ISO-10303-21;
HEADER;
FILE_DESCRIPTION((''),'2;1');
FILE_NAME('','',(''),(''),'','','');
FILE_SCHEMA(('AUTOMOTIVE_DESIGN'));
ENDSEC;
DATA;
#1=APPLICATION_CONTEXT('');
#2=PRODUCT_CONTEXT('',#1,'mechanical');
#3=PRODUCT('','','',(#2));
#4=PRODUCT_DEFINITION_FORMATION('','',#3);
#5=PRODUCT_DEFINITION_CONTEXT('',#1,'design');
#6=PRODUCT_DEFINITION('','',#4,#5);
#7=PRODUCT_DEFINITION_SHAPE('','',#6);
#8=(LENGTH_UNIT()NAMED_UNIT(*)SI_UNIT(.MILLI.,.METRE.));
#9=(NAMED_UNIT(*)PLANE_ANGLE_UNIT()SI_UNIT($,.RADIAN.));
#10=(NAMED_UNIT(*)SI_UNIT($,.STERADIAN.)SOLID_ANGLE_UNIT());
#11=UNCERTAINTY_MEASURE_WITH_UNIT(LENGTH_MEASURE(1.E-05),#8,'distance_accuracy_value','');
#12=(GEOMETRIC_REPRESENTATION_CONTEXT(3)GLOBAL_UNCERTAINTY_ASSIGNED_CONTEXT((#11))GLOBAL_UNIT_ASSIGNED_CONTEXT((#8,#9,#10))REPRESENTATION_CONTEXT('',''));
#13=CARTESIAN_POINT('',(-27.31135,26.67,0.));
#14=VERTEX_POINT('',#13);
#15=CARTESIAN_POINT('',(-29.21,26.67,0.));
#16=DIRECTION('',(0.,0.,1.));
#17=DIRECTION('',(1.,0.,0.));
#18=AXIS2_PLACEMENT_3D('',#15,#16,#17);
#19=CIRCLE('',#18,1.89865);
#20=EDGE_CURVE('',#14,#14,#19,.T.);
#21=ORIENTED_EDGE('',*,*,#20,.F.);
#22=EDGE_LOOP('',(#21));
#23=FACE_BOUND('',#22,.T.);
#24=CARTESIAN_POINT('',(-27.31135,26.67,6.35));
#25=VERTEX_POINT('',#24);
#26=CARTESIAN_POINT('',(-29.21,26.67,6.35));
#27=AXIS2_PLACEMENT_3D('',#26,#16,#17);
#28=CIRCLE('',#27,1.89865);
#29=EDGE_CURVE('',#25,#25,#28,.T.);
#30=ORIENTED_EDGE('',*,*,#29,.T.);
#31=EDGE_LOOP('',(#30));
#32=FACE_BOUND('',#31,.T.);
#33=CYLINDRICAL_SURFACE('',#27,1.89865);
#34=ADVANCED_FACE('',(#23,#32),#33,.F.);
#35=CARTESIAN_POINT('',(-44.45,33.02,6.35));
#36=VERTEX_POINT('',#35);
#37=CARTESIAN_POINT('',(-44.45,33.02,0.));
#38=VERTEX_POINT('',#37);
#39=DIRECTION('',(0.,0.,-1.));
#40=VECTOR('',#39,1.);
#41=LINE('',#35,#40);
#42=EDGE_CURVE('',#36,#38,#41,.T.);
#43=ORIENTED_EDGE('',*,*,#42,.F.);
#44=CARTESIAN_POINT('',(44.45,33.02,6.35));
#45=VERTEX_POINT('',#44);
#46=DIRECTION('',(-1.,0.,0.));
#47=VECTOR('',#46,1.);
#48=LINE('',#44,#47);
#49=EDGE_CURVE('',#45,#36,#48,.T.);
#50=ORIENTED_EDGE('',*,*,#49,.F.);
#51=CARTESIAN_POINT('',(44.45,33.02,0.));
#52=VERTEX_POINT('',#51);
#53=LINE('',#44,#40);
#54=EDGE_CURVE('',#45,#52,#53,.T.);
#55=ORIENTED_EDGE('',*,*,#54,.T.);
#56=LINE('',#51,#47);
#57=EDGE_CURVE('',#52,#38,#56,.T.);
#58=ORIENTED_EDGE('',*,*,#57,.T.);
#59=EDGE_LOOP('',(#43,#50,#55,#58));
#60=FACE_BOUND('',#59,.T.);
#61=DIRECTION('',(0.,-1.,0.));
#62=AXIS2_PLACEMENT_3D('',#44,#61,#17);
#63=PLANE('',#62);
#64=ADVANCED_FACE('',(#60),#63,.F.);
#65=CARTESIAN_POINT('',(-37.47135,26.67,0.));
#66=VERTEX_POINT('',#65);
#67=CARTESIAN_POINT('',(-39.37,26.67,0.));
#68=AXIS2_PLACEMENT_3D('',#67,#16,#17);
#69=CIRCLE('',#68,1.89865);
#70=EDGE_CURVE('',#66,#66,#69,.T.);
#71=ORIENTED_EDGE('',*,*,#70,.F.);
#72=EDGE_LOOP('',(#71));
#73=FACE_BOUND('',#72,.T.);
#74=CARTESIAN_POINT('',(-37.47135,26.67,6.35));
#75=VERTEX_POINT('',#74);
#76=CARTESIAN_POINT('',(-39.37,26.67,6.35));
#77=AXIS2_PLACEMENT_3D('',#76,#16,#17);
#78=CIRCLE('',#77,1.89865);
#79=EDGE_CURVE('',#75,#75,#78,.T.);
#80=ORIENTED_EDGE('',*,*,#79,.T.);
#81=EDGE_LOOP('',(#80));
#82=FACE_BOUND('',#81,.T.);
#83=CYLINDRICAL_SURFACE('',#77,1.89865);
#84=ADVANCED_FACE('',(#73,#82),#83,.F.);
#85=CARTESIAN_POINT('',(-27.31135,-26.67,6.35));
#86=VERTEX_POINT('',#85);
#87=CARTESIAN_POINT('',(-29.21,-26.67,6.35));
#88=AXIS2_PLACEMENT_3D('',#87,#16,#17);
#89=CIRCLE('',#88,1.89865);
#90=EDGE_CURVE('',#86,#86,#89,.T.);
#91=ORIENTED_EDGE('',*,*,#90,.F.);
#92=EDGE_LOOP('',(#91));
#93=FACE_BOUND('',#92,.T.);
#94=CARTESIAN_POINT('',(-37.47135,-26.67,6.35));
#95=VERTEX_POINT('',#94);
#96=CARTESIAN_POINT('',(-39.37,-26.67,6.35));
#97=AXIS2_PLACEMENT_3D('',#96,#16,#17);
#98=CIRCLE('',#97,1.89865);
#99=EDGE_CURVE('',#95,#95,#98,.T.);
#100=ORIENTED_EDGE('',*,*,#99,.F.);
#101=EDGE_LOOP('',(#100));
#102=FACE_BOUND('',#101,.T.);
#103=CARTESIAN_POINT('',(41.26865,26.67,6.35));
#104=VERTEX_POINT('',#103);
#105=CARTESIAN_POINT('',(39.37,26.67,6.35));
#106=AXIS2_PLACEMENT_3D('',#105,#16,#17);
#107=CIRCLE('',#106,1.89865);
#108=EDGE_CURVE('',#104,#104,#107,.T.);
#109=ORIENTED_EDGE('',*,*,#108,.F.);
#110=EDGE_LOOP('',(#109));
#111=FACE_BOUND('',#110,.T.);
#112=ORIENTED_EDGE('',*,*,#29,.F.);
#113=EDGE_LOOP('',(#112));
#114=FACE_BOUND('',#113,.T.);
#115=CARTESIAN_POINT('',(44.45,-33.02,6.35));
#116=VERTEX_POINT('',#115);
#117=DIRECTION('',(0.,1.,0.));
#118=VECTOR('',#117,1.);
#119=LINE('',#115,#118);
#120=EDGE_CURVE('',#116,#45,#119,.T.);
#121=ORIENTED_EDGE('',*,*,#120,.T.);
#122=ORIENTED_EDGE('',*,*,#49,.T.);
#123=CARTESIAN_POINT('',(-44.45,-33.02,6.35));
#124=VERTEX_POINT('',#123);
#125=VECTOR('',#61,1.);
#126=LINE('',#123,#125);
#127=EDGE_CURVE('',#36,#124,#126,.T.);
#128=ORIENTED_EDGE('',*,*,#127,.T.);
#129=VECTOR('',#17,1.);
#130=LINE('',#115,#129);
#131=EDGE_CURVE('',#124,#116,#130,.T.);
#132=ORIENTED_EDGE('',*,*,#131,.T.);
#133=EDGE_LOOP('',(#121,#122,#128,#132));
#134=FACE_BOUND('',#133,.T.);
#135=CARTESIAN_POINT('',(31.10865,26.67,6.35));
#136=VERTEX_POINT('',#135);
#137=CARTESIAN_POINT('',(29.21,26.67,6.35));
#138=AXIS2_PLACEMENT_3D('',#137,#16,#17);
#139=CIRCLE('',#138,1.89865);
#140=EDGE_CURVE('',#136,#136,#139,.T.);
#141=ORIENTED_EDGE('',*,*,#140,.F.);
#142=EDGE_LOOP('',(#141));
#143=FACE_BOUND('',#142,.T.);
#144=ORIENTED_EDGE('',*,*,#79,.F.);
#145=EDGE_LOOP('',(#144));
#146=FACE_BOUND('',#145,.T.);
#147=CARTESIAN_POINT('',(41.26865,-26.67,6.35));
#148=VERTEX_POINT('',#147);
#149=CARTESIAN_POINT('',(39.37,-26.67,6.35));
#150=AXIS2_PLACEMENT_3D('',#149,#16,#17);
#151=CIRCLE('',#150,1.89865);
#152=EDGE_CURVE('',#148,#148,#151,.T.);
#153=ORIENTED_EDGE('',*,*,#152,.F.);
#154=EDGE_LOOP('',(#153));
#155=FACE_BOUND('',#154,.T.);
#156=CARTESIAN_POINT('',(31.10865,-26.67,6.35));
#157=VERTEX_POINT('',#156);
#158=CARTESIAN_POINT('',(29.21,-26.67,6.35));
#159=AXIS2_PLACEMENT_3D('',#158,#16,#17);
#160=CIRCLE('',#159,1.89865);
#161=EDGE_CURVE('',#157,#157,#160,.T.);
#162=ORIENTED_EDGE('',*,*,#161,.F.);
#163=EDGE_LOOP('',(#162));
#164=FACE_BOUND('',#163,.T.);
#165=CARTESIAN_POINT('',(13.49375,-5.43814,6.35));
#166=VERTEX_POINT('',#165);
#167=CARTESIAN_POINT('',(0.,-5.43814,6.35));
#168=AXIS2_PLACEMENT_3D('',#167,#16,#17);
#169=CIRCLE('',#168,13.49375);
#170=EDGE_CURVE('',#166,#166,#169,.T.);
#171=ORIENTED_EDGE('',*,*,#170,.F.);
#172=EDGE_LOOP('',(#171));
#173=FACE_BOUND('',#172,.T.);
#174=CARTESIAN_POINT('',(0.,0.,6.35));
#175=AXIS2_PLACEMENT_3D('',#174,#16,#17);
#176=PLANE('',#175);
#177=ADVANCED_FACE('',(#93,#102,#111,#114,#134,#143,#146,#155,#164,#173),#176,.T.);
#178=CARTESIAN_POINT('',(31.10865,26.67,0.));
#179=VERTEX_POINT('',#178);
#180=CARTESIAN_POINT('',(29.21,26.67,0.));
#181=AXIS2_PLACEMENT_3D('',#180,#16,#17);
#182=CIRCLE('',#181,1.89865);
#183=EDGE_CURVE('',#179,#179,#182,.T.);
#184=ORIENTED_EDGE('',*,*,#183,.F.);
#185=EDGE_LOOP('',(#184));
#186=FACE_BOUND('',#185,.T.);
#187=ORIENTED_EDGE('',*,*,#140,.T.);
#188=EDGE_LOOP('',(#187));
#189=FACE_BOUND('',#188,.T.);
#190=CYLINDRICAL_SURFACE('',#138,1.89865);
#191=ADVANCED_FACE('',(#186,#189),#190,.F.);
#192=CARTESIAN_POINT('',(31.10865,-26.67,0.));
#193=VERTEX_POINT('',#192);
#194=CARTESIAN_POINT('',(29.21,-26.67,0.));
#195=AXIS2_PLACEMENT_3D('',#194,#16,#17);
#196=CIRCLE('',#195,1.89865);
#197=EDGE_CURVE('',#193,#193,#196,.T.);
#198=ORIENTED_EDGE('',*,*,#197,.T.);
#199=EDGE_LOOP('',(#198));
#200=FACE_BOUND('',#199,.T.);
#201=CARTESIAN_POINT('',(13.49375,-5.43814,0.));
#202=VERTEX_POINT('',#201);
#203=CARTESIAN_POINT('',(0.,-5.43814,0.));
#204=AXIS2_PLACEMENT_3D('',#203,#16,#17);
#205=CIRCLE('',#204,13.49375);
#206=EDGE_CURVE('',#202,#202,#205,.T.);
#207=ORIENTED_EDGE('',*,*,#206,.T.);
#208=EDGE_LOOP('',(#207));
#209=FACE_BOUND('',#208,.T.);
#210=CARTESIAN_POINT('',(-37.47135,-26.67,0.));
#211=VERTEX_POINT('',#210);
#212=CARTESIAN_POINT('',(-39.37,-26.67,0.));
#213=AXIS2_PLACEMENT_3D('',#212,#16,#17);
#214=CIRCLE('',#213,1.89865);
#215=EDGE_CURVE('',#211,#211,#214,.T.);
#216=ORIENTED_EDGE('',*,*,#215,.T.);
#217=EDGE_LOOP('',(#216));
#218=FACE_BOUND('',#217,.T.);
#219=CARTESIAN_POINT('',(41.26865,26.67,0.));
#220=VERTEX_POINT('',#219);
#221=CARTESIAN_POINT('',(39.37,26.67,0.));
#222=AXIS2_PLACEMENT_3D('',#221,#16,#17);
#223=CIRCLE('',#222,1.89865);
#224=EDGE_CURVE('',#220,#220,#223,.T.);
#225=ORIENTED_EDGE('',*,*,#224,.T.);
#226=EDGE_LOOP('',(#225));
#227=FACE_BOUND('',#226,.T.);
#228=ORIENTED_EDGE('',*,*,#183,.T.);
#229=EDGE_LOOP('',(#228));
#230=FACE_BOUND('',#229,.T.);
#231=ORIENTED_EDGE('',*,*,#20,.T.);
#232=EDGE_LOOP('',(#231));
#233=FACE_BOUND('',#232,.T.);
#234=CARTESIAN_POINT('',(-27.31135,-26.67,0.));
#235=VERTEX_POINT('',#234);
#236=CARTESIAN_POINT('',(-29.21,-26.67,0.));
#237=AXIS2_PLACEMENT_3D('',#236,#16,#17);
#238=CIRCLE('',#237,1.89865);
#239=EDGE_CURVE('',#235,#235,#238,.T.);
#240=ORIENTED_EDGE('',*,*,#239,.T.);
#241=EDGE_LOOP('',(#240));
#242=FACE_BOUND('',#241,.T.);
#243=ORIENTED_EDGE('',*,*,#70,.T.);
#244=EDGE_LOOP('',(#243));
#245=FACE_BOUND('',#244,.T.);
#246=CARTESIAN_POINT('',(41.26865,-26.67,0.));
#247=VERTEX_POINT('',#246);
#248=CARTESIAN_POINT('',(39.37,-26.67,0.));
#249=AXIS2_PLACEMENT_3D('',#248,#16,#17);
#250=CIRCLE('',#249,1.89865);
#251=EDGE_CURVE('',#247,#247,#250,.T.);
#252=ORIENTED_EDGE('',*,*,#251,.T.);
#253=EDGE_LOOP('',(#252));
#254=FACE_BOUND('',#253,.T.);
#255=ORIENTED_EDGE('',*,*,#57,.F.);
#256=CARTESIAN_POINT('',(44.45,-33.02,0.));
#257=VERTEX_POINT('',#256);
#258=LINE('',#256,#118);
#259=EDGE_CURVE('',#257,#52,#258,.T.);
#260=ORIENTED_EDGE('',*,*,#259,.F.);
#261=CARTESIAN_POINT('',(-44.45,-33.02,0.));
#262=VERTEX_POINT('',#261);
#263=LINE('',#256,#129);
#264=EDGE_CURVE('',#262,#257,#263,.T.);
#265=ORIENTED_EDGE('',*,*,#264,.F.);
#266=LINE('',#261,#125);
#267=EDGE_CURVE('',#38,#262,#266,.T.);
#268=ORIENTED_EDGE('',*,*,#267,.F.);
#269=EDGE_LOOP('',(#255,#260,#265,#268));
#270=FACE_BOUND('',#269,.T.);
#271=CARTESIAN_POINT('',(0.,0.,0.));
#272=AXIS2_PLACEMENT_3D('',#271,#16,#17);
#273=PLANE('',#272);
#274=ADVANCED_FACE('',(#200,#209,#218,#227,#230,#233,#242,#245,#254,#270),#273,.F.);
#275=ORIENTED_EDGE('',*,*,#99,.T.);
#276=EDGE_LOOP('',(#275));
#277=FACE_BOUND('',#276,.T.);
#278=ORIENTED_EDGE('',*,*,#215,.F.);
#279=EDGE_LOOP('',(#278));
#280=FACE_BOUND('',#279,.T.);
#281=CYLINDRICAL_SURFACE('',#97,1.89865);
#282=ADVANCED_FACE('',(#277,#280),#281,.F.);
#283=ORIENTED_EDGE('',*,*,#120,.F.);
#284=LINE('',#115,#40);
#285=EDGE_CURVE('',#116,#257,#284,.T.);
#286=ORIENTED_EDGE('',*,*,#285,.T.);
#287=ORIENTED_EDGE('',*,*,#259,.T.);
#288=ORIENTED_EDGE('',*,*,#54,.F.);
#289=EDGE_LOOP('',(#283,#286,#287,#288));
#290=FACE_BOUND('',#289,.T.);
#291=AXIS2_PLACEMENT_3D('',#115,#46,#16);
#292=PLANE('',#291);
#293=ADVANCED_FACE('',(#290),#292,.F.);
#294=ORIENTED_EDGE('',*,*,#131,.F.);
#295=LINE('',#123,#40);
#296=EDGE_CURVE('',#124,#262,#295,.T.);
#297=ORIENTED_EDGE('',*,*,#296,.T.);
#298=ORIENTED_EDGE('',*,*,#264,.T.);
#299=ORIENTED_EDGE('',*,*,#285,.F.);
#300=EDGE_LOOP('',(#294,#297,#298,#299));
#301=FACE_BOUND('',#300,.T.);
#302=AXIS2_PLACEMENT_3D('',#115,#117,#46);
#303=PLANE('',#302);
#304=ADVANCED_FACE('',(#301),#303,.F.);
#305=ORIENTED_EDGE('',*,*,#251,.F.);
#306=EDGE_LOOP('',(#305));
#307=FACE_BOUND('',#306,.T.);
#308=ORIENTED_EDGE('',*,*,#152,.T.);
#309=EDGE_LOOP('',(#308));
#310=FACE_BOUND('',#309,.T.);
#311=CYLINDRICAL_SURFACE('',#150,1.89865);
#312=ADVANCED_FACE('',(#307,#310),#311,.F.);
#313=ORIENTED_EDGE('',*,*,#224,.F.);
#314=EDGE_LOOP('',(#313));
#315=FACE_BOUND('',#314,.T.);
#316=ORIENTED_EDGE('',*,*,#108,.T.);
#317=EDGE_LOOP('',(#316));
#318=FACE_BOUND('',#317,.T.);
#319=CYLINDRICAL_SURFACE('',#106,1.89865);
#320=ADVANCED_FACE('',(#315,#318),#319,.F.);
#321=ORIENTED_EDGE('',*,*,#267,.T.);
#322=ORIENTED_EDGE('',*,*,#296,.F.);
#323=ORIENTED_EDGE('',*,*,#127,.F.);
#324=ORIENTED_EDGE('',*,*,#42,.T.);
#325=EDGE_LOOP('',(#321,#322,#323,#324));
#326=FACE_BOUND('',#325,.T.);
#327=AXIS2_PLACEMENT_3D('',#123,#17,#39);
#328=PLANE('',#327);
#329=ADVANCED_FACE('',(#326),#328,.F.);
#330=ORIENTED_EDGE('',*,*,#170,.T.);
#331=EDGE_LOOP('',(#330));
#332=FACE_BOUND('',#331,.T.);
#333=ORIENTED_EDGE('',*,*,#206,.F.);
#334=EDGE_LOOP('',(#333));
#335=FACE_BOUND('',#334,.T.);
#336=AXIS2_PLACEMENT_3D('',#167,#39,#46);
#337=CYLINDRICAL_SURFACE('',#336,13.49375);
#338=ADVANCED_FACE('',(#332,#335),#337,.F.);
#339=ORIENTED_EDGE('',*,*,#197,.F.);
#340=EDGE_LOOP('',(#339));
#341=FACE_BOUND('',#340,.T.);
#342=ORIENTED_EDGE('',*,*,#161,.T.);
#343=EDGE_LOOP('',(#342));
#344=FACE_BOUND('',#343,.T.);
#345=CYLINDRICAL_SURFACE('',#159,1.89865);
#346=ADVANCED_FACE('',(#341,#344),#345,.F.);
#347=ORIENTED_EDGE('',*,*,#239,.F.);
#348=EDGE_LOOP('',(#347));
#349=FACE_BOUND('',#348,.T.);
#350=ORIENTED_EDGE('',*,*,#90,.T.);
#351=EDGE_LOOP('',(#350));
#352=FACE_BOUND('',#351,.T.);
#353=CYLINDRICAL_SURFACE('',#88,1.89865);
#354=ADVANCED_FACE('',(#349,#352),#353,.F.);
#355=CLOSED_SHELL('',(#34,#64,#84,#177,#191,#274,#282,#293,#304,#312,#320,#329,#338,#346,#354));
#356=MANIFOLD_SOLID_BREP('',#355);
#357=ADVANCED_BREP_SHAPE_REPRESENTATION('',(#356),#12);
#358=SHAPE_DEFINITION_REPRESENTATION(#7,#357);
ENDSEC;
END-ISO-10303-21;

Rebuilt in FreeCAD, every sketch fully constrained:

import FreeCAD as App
import Part
import Sketcher
from FreeCAD import Vector
Q = App.Units.Quantity


def add_polygon(sketch, points):
    """Adds a closed chain of lines whose ends are joined by coincident constraints."""
    first, n = sketch.GeometryCount, len(points)
    for a, b in zip(points, points[1:] + points[:1]):
        sketch.addGeometry(Part.LineSegment(App.Vector(*a, 0), App.Vector(*b, 0)), False)
    for i in range(n):
        sketch.addConstraint(Sketcher.Constraint("Coincident", first + i, 2, first + (i + 1) % n, 1))

doc = App.newDocument("Part")
params = doc.addObject("Spreadsheet::Sheet", "Params")
for row, (alias, value) in enumerate([
    ("sketch1_diameter", "1.0625 in"),
    ("sketch1_width", "3.5 in"),
    ("sketch1_height", "2.6 in"),
    ("pad1_length", "0.25 in"),
    ("hole_diameter", "0.1495 in"),
    ("hole2_diameter", "0.1495 in"),
], start=1):
    params.set(f"A{row}", alias)
    params.set(f"B{row}", "=" + value)
    params.setAlias(f"B{row}", alias)

body = doc.addObject("PartDesign::Body", "Body")

# Sketch on XY plane
sketch1 = body.newObject("Sketcher::SketchObject", "Sketch")
sketch1.AttachmentSupport = (doc.getObject("XY_Plane"), [""])
sketch1.MapMode = "FlatFace"
add_polygon(sketch1, [(-44, 33), (-44, -33), (44, -33), (44, 33)])  # lines 0-3
sketch1.addGeometry(Part.Circle(Vector(0, -5, 0), Vector(0, 0, 1), 13), False)  # 4
sketch1.addConstraint([
    Sketcher.Constraint("Vertical", 0),
    Sketcher.Constraint("Horizontal", 1),
    Sketcher.Constraint("Vertical", 2),
    Sketcher.Constraint("Horizontal", 3),
    Sketcher.Constraint("Symmetric", 0, 2, 2, 2, -1, 1),
    Sketcher.Constraint("PointOnObject", 4, 3, -2),
    Sketcher.Constraint("Diameter", 4, Q("1.0625 in")),
    Sketcher.Constraint("DistanceX", 1, 1, 1, 2, Q("3.5 in")),
    Sketcher.Constraint("DistanceY", 0, 2, 0, 1, Q("2.6 in")),
    Sketcher.Constraint("DistanceY", 4, 3, -1, 1, Q("0.2141 in")),
])
sketch1.setExpression("Constraints[10]", "Params.sketch1_diameter")
sketch1.setExpression("Constraints[11]", "Params.sketch1_width")
sketch1.setExpression("Constraints[12]", "Params.sketch1_height")
pad1 = body.newObject("PartDesign::Pad", "Pad")
pad1.Profile = sketch1
pad1.setExpression("Length", "Params.pad1_length")

# Sketch on XY plane
sketch2 = body.newObject("Sketcher::SketchObject", "Sketch001")
sketch2.AttachmentSupport = (doc.getObject("XY_Plane"), [""])
sketch2.MapMode = "FlatFace"
sketch2.AttachmentOffset = App.Placement(Vector(0, 0, 0.25 * 25.4), App.Rotation())
sketch2.addGeometry([
    Part.Circle(Vector(-39.4, -26.7, 0), Vector(0, 0, 1), 1.9),
    Part.Circle(Vector(-29.2, -26.7, 0), Vector(0, 0, 1), 1.9),
    Part.Circle(Vector(29.2, -26.7, 0), Vector(0, 0, 1), 1.9),
    Part.Circle(Vector(39.4, -26.7, 0), Vector(0, 0, 1), 1.9),
], False)
sketch2.addConstraint([
    Sketcher.Constraint("Equal", 0, 1),
    Sketcher.Constraint("Equal", 1, 2),
    Sketcher.Constraint("Equal", 2, 3),
    Sketcher.Constraint("Symmetric", 1, 3, 2, 3, -2),
    Sketcher.Constraint("Symmetric", 0, 3, 3, 3, -2),
    Sketcher.Constraint("Horizontal", 0, 3, 1, 3),
    Sketcher.Constraint("Diameter", 0, Q("0.1495 in")),
    Sketcher.Constraint("DistanceX", 0, 3, 1, 3, Q("0.4 in")),
    Sketcher.Constraint("DistanceX", 1, 3, 2, 3, Q("2.3 in")),
    Sketcher.Constraint("DistanceY", 0, 3, -1, 1, Q("1.05 in")),
])
doc.recompute()
hole = body.newObject("PartDesign::Hole", "Hole")
hole.Profile = sketch2
hole.ThreadType = "None"
hole.setExpression("Diameter", "Params.hole_diameter")
hole.DepthType = "ThroughAll"

# Sketch on XY plane
sketch3 = body.newObject("Sketcher::SketchObject", "Sketch002")
sketch3.AttachmentSupport = (doc.getObject("XY_Plane"), [""])
sketch3.MapMode = "FlatFace"
sketch3.AttachmentOffset = App.Placement(Vector(0, 0, 0.25 * 25.4), App.Rotation())
sketch3.addGeometry([
    Part.Circle(Vector(-39.4, 26.7, 0), Vector(0, 0, 1), 1.9),
    Part.Circle(Vector(-29.2, 26.7, 0), Vector(0, 0, 1), 1.9),
    Part.Circle(Vector(29.2, 26.7, 0), Vector(0, 0, 1), 1.9),
    Part.Circle(Vector(39.4, 26.7, 0), Vector(0, 0, 1), 1.9),
], False)
sketch3.addConstraint([
    Sketcher.Constraint("Equal", 0, 1),
    Sketcher.Constraint("Equal", 1, 2),
    Sketcher.Constraint("Equal", 2, 3),
    Sketcher.Constraint("Symmetric", 1, 3, 2, 3, -2),
    Sketcher.Constraint("Symmetric", 0, 3, 3, 3, -2),
    Sketcher.Constraint("Horizontal", 0, 3, 1, 3),
    Sketcher.Constraint("Diameter", 0, Q("0.1495 in")),
    Sketcher.Constraint("DistanceX", 0, 3, 1, 3, Q("0.4 in")),
    Sketcher.Constraint("DistanceX", 1, 3, 2, 3, Q("2.3 in")),
    Sketcher.Constraint("DistanceY", -1, 1, 0, 3, Q("1.05 in")),
])
doc.recompute()
hole2 = body.newObject("PartDesign::Hole", "Hole001")
hole2.Profile = sketch3
hole2.ThreadType = "None"
hole2.setExpression("Diameter", "Params.hole2_diameter")
hole2.DepthType = "ThroughAll"

doc.recompute()
